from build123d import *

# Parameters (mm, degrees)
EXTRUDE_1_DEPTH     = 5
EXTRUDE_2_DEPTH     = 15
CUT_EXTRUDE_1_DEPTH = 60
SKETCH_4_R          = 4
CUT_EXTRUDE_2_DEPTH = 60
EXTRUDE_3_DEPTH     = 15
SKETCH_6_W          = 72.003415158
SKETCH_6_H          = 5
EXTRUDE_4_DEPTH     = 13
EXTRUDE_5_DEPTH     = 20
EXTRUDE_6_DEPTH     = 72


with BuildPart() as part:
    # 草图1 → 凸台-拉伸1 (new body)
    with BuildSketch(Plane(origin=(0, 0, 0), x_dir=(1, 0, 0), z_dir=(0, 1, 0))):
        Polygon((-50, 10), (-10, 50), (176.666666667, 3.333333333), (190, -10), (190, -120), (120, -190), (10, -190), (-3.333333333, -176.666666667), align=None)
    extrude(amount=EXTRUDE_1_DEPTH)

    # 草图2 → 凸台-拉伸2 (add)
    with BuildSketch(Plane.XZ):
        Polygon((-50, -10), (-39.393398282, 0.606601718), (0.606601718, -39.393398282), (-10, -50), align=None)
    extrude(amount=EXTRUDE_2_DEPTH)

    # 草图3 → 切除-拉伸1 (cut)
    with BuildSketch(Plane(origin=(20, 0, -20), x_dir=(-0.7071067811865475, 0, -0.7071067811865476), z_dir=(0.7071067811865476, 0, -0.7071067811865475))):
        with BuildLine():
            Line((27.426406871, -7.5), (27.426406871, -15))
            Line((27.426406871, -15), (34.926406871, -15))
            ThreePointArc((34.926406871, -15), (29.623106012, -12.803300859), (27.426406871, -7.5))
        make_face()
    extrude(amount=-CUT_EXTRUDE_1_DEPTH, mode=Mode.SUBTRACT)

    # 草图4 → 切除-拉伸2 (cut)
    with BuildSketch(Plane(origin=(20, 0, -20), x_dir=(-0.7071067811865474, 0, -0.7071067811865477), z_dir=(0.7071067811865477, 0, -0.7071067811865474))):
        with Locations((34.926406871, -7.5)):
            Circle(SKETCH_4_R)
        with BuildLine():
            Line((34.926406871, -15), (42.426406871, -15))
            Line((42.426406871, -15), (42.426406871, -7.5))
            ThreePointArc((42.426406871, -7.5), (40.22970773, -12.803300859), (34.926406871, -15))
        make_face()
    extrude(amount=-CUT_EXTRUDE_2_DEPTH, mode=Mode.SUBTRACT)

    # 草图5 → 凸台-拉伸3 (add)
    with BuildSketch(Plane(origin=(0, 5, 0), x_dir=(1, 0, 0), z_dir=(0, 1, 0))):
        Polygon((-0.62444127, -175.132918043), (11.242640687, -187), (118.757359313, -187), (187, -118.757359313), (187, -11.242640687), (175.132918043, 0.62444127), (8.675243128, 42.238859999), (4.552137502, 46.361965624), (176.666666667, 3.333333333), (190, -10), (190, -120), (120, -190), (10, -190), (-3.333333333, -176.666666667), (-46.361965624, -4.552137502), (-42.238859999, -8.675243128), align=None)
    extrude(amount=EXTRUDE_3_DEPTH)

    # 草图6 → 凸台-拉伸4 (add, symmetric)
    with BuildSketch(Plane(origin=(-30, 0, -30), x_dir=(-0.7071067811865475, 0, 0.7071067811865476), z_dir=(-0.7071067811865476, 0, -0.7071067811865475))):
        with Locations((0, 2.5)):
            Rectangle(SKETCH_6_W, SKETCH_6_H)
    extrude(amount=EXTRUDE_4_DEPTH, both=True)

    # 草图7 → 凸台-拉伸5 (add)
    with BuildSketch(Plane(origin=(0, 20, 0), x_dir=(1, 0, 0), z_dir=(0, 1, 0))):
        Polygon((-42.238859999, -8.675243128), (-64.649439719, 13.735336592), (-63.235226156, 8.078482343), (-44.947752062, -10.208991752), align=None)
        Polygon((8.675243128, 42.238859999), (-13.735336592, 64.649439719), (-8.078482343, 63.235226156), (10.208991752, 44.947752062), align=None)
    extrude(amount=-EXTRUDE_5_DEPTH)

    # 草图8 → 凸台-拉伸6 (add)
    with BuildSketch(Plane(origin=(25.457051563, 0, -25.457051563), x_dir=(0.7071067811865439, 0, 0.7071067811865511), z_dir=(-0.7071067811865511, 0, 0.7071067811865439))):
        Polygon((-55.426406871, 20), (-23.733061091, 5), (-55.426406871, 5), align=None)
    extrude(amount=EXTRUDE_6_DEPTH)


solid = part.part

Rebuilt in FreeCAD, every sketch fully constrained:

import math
import FreeCAD as App
import Part
import Sketcher

V = App.Vector
Q = App.Units.Quantity

doc = App.newDocument("Part")
body = doc.addObject("PartDesign::Body", "Body")

# Sketch on XZ plane
sketch1 = body.newObject("Sketcher::SketchObject", "Sketch")
sketch1.AttachmentSupport = (doc.getObject("XZ_Plane"), [""])
sketch1.MapMode = "FlatFace"
sketch1.addGeometry([
    Part.LineSegment(V(-10, -50, 0), V(-50, -10, 0)),  # 0
    Part.LineSegment(V(-50, -10, 0), V(-3, 177, 0)),  # 1
    Part.LineSegment(V(-3, 177, 0), V(10, 190, 0)),  # 2
    Part.LineSegment(V(10, 190, 0), V(120, 190, 0)),  # 3
    Part.LineSegment(V(120, 190, 0), V(190, 120, 0)),  # 4
    Part.LineSegment(V(190, 120, 0), V(190, 10, 0)),  # 5
    Part.LineSegment(V(190, 10, 0), V(177, -3, 0)),  # 6
    Part.LineSegment(V(177, -3, 0), V(-10, -50, 0)),  # 7
], False)
sketch1.addConstraint([
    Sketcher.Constraint("Coincident", 0, 2, 1, 1),
    Sketcher.Constraint("Coincident", 1, 2, 2, 1),
    Sketcher.Constraint("Coincident", 2, 2, 3, 1),
    Sketcher.Constraint("Coincident", 3, 2, 4, 1),
    Sketcher.Constraint("Coincident", 4, 2, 5, 1),
    Sketcher.Constraint("Coincident", 5, 2, 6, 1),
    Sketcher.Constraint("Coincident", 6, 2, 7, 1),
    Sketcher.Constraint("Coincident", 7, 2, 0, 1),
    Sketcher.Constraint("Horizontal", 3),
    Sketcher.Constraint("Vertical", 5),
    Sketcher.Constraint("Perpendicular", 0, 2),
    Sketcher.Constraint("Perpendicular", 2, 4),
    Sketcher.Constraint("Perpendicular", 4, 6),
    Sketcher.Constraint("Equal", 3, 5),
    Sketcher.Constraint("Equal", 2, 6),
    Sketcher.Constraint("Equal", 1, 7),
    Sketcher.Constraint("DistanceX", 3, 1, 3, 2, 110.0),
    Sketcher.Constraint("Angle", 0, Q("135 deg")),
    Sketcher.Constraint("DistanceX", 0, 2, -1, 1, 50.0),
    Sketcher.Constraint("DistanceY", 0, 2, -1, 1, 10.0),
    Sketcher.Constraint("DistanceX", -1, 1, 2, 2, 10.0),
    Sketcher.Constraint("DistanceY", -1, 1, 2, 2, 190.0),
    Sketcher.Constraint("DistanceX", -1, 1, 4, 2, 190.0),
    Sketcher.Constraint("Distance", 2, 18.856181),
])
pad1 = body.newObject("PartDesign::Pad", "Pad")
pad1.Profile = sketch1
pad1.Length = 5
pad1.Reversed = True

# Sketch on XZ plane
sketch2 = body.newObject("Sketcher::SketchObject", "Sketch001")
sketch2.AttachmentSupport = (doc.getObject("XZ_Plane"), [""])
sketch2.MapMode = "FlatFace"
sketch2.addGeometry([
    Part.LineSegment(V(-39, 1, 0), V(-50, -10, 0)),
    Part.LineSegment(V(-50, -10, 0), V(-10, -50, 0)),
    Part.LineSegment(V(-10, -50, 0), V(1, -39, 0)),
    Part.LineSegment(V(1, -39, 0), V(-39, 1, 0)),
], False)
sketch2.addConstraint([
    Sketcher.Constraint("Coincident", 0, 2, 1, 1),
    Sketcher.Constraint("Coincident", 1, 2, 2, 1),
    Sketcher.Constraint("Coincident", 2, 2, 3, 1),
    Sketcher.Constraint("Coincident", 3, 2, 0, 1),
    Sketcher.Constraint("Perpendicular", 0, 1),
    Sketcher.Constraint("Perpendicular", 1, 2),
    Sketcher.Constraint("Perpendicular", 2, 3),
    Sketcher.Constraint("Angle", 0, Q("-135 deg")),
    Sketcher.Constraint("Distance", 0, 15.0),
    Sketcher.Constraint("DistanceX", 0, 2, -1, 1, 50.0),
    Sketcher.Constraint("DistanceY", 0, 2, -1, 1, 10.0),
    Sketcher.Constraint("DistanceX", 1, 2, -1, 1, 10.0),
])
pad2 = body.newObject("PartDesign::Pad", "Pad001")
pad2.Profile = sketch2
pad2.Length = 15

# Sketch on an angled plane
sketch3 = body.newObject("Sketcher::SketchObject", "Sketch002")
sketch3.Placement = App.Placement(V(20, 0, -20), App.Rotation(V(-0.707106781, 0, -0.707106781), V(0, 0.999999999, 0), V(0.707106781, 0, -0.707106781), "ZXY"))
sketch3.addGeometry([
    Part.LineSegment(V(27, -7, 0), V(27, -15, 0)),
    Part.LineSegment(V(27, -15, 0), V(35, -15, 0)),
    Part.ArcOfCircle(Part.Circle(V(35, -7, 0), V(0, 0, 1), 8), math.radians(180), math.radians(270)),
], False)
sketch3.addConstraint([
    Sketcher.Constraint("Coincident", 0, 2, 1, 1),
    Sketcher.Constraint("Tangent", 1, 2, 2, 2),
    Sketcher.Constraint("Tangent", 2, 1, 0, 1),
    Sketcher.Constraint("Vertical", 0),
    Sketcher.Constraint("Horizontal", 1),
    Sketcher.Constraint("Radius", 2, 7.5),
    Sketcher.Constraint("DistanceY", 0, 2, -1, 1, 15.0),
    Sketcher.Constraint("DistanceX", -1, 1, 2, 3, 34.926407),
])
pocket1 = body.newObject("PartDesign::Pocket", "Pocket")
pocket1.Profile = sketch3
pocket1.Length = 60

# Sketch on an angled plane
sketch4 = body.newObject("Sketcher::SketchObject", "Sketch003")
sketch4.Placement = App.Placement(V(20, 0, -20), App.Rotation(V(-0.707106781, 0, -0.707106781), V(0, 0.999999999, 0), V(0.707106781, 0, -0.707106781), "ZXY"))
sketch4.addGeometry([
    Part.Circle(V(34.9, -7.5, 0), V(0, 0, 1), 4),
    Part.LineSegment(V(34.9, -15, 0), V(42.4, -15, 0)),
    Part.LineSegment(V(42.4, -15, 0), V(42.4, -7.5, 0)),
    Part.ArcOfCircle(Part.Circle(V(34.9, -7.5, 0), V(0, 0, 1), 7.5), math.radians(-90), math.radians(0)),
], False)
sketch4.addConstraint([
    Sketcher.Constraint("Coincident", 1, 2, 2, 1),
    Sketcher.Constraint("Tangent", 2, 2, 3, 2),
    Sketcher.Constraint("Tangent", 3, 1, 1, 1),
    Sketcher.Constraint("Horizontal", 1),
    Sketcher.Constraint("Vertical", 2),
    Sketcher.Constraint("Coincident", 3, 3, 0, 3),
    Sketcher.Constraint("Diameter", 0, 8.0),
    Sketcher.Constraint("Radius", 3, 7.5),
    Sketcher.Constraint("DistanceY", 1, 2, -1, 1, 15.0),
    Sketcher.Constraint("DistanceX", -1, 1, 0, 3, 34.926407),
])
pocket2 = body.newObject("PartDesign::Pocket", "Pocket001")
pocket2.Profile = sketch4
pocket2.Length = 60

# Sketch on XZ plane
sketch5 = body.newObject("Sketcher::SketchObject", "Sketch004")
sketch5.AttachmentSupport = (doc.getObject("XZ_Plane"), [""])
sketch5.MapMode = "FlatFace"
sketch5.AttachmentOffset = App.Placement(V(0, 0, -5), App.Rotation())
sketch5.addGeometry([
    Part.LineSegment(V(11.242641, 187, 0), V(-0.624441, 175.132918, 0)),  # 0
    Part.LineSegment(V(-0.624441, 175.132918, 0), V(-42.23886, 8.675243, 0)),  # 1
    Part.LineSegment(V(-42.23886, 8.675243, 0), V(-46.361966, 4.552138, 0)),  # 2
    Part.LineSegment(V(-46.361966, 4.552138, 0), V(-3.333333, 176.666667, 0)),  # 3
    Part.LineSegment(V(-3.333333, 176.666667, 0), V(10, 190, 0)),  # 4
    Part.LineSegment(V(10, 190, 0), V(120, 190, 0)),  # 5
    Part.LineSegment(V(120, 190, 0), V(190, 120, 0)),  # 6
    Part.LineSegment(V(190, 120, 0), V(190, 10, 0)),  # 7
    Part.LineSegment(V(190, 10, 0), V(176.666667, -3.333333, 0)),  # 8
    Part.LineSegment(V(176.666667, -3.333333, 0), V(4.552138, -46.361966, 0)),  # 9
    Part.LineSegment(V(4.552138, -46.361966, 0), V(8.675243, -42.23886, 0)),  # 10
    Part.LineSegment(V(8.675243, -42.23886, 0), V(175.132918, -0.624441, 0)),  # 11
    Part.LineSegment(V(175.132918, -0.624441, 0), V(187, 11.242641, 0)),  # 12
    Part.LineSegment(V(187, 11.242641, 0), V(187, 118.757359, 0)),  # 13
    Part.LineSegment(V(187, 118.757359, 0), V(118.757359, 187, 0)),  # 14
    Part.LineSegment(V(118.757359, 187, 0), V(11.242641, 187, 0)),  # 15
], False)
sketch5.addConstraint([
    Sketcher.Constraint("Coincident", 0, 2, 1, 1),
    Sketcher.Constraint("Coincident", 1, 2, 2, 1),
    Sketcher.Constraint("Coincident", 2, 2, 3, 1),
    Sketcher.Constraint("Coincident", 3, 2, 4, 1),
    Sketcher.Constraint("Coincident", 4, 2, 5, 1),
    Sketcher.Constraint("Coincident", 5, 2, 6, 1),
    Sketcher.Constraint("Coincident", 6, 2, 7, 1),
    Sketcher.Constraint("Coincident", 7, 2, 8, 1),
    Sketcher.Constraint("Coincident", 8, 2, 9, 1),
    Sketcher.Constraint("Coincident", 9, 2, 10, 1),
    Sketcher.Constraint("Coincident", 10, 2, 11, 1),
    Sketcher.Constraint("Coincident", 11, 2, 12, 1),
    Sketcher.Constraint("Coincident", 12, 2, 13, 1),
    Sketcher.Constraint("Coincident", 13, 2, 14, 1),
    Sketcher.Constraint("Coincident", 14, 2, 15, 1),
    Sketcher.Constraint("Coincident", 15, 2, 0, 1),
    Sketcher.Constraint("Horizontal", 5),
    Sketcher.Constraint("Vertical", 7),
    Sketcher.Constraint("Vertical", 13),
    Sketcher.Constraint("Horizontal", 15),
    Sketcher.Constraint("DistanceX", 5, 1, 5, 2, 110.0),
    Sketcher.Constraint("DistanceY", 7, 2, 7, 1, 110.0),
    Sketcher.Constraint("DistanceX", -1, 1, 4, 2, 10.0),
    Sketcher.Constraint("DistanceY", -1, 1, 4, 2, 190.0),
    Sketcher.Constraint("DistanceX", -1, 1, 6, 2, 190.0),
    Sketcher.Constraint("DistanceY", -1, 1, 6, 2, 120.0),
    Sketcher.Constraint("DistanceX", -1, 1, 12, 2, 187.0),
    Sketcher.Constraint("DistanceY", -1, 1, 14, 2, 187.0),
    Sketcher.Constraint("DistanceX", 15, 2, 15, 1, 107.514719),
    Sketcher.Constraint("DistanceY", 13, 1, 13, 2, 107.514719),
    Sketcher.Constraint("DistanceY", 10, 2, 12, 2, 53.481501),
    Sketcher.Constraint("DistanceY", 11, 2, 13, 2, 119.381801),
    Sketcher.Constraint("DistanceX", 0, 2, 14, 2, 119.381801),
    Sketcher.Constraint("Distance", 0, 16.782588),
    Sketcher.Constraint("Distance", 2, 5.830952),
    Sketcher.Constraint("Distance", 4, 18.856181),
    Sketcher.Constraint("Distance", 8, 18.856181),
    Sketcher.Constraint("Distance", 10, 5.830952),
    Sketcher.Constraint("Distance", 12, 16.782588),
    Sketcher.Constraint("DistanceX", 0, 2, -1, 1, 0.624441),
    Sketcher.Constraint("DistanceX", 1, 2, -1, 1, 42.23886),
    Sketcher.Constraint("DistanceY", 10, 2, -1, 1, 42.23886),
    Sketcher.Constraint("DistanceY", 2, 2, 0, 2, 170.580781),
    Sketcher.Constraint("DistanceY", 0, 2, 3, 2, 1.533749),
    Sketcher.Constraint("DistanceY", 8, 2, 2, 2, 7.885471),
    Sketcher.Constraint("DistanceY", 9, 2, 1, 2, 55.037209),
    Sketcher.Constraint("DistanceX", 9, 2, 8, 2, 172.114529),
    Sketcher.Constraint("Distance", 1, 171.580644),
])
pad3 = body.newObject("PartDesign::Pad", "Pad002")
pad3.Profile = sketch5
pad3.Length = 15
pad3.Reversed = True

# Sketch on an angled plane
sketch6 = body.newObject("Sketcher::SketchObject", "Sketch005")
sketch6.Placement = App.Placement(V(-30, 0, -30), App.Rotation(V(-0.707106781, 0, 0.707106781), V(0, 0.999999999, 0), V(-0.707106781, 0, -0.707106781), "ZXY"))
sketch6.addGeometry([
    Part.LineSegment(V(-36, 5, 0), V(-36, 0, 0)),
    Part.LineSegment(V(-36, 0, 0), V(36, 0, 0)),
    Part.LineSegment(V(36, 0, 0), V(36, 5, 0)),
    Part.LineSegment(V(36, 5, 0), V(-36, 5, 0)),
], False)
sketch6.addConstraint([
    Sketcher.Constraint("Coincident", 0, 2, 1, 1),
    Sketcher.Constraint("Coincident", 1, 2, 2, 1),
    Sketcher.Constraint("Coincident", 2, 2, 3, 1),
    Sketcher.Constraint("Coincident", 3, 2, 0, 1),
    Sketcher.Constraint("Vertical", 0),
    Sketcher.Constraint("Horizontal", 1),
    Sketcher.Constraint("Vertical", 2),
    Sketcher.Constraint("Horizontal", 3),
    Sketcher.Constraint("Symmetric", 0, 2, 1, 2, -1, 1),
    Sketcher.Constraint("DistanceY", 0, 2, 0, 1, 5.0),
    Sketcher.Constraint("DistanceX", 1, 1, 1, 2, 72.003415),
])
pad4 = body.newObject("PartDesign::Pad", "Pad003")
pad4.Profile = sketch6
pad4.Length = 26
pad4.Midplane = True

# Sketch on XZ plane
sketch7 = body.newObject("Sketcher::SketchObject", "Sketch006")
sketch7.AttachmentSupport = (doc.getObject("XZ_Plane"), [""])
sketch7.MapMode = "FlatFace"
sketch7.AttachmentOffset = App.Placement(V(0, 0, -20), App.Rotation())
sketch7.addGeometry([
    Part.LineSegment(V(-42.2, 8.7, 0), V(-64.6, -13.7, 0)),  # 0
    Part.LineSegment(V(-64.6, -13.7, 0), V(-63.2, -8.1, 0)),  # 1
    Part.LineSegment(V(-63.2, -8.1, 0), V(-44.9, 10.2, 0)),  # 2
    Part.LineSegment(V(-44.9, 10.2, 0), V(-42.2, 8.7, 0)),  # 3
    Part.LineSegment(V(-13.7, -64.6, 0), V(8.7, -42.2, 0)),  # 4
    Part.LineSegment(V(8.7, -42.2, 0), V(10.2, -44.9, 0)),  # 5
    Part.LineSegment(V(10.2, -44.9, 0), V(-8.1, -63.2, 0)),  # 6
    Part.LineSegment(V(-8.1, -63.2, 0), V(-13.7, -64.6, 0)),  # 7
], False)
sketch7.addConstraint([
    Sketcher.Constraint("Coincident", 0, 2, 1, 1),
    Sketcher.Constraint("Coincident", 1, 2, 2, 1),
    Sketcher.Constraint("Coincident", 2, 2, 3, 1),
    Sketcher.Constraint("Coincident", 3, 2, 0, 1),
    Sketcher.Constraint("Coincident", 4, 2, 5, 1),
    Sketcher.Constraint("Coincident", 5, 2, 6, 1),
    Sketcher.Constraint("Coincident", 6, 2, 7, 1),
    Sketcher.Constraint("Coincident", 7, 2, 4, 1),
    Sketcher.Constraint("Parallel", 0, 2),
    Sketcher.Constraint("Parallel", 2, 4),
    Sketcher.Constraint("Parallel", 4, 6),
    Sketcher.Constraint("Equal", 0, 4),
    Sketcher.Constraint("Equal", 3, 5),
    Sketcher.Constraint("Equal", 2, 6),
    Sketcher.Constraint("Equal", 1, 7),
    Sketcher.Constraint("Angle", 0, Q("-135 deg")),
    Sketcher.Constraint("Distance", 1, 5.830952),
    Sketcher.Constraint("DistanceX", 0, 2, -1, 1, 64.64944),
    Sketcher.Constraint("DistanceY", -1, 1, 2, 2, 10.208992),
    Sketcher.Constraint("DistanceX", 3, 2, -1, 1, 42.23886),
    Sketcher.Constraint("DistanceY", 4, 2, -1, 1, 42.23886),
    Sketcher.Constraint("DistanceX", -1, 1, 5, 2, 10.208992),
    Sketcher.Constraint("DistanceY", 0, 2, 2, 2, 23.944328),
    Sketcher.Constraint("DistanceX", 1, 2, 4, 2, 71.910469),
])
pad5 = body.newObject("PartDesign::Pad", "Pad004")
pad5.Profile = sketch7
pad5.Length = 20

# Sketch on an angled plane
sketch8 = body.newObject("Sketcher::SketchObject", "Sketch007")
sketch8.Placement = App.Placement(V(25.457052, 0, -25.457052), App.Rotation(V(0.707106781, 0, 0.707106781), V(0, 0.999999999, 0), V(-0.707106781, 0, 0.707106781), "ZXY"))
sketch8.addGeometry([
    Part.LineSegment(V(-24, 5, 0), V(-55, 20, 0)),
    Part.LineSegment(V(-55, 20, 0), V(-55, 5, 0)),
    Part.LineSegment(V(-55, 5, 0), V(-24, 5, 0)),
], False)
sketch8.addConstraint([
    Sketcher.Constraint("Coincident", 0, 2, 1, 1),
    Sketcher.Constraint("Coincident", 1, 2, 2, 1),
    Sketcher.Constraint("Coincident", 2, 2, 0, 1),
    Sketcher.Constraint("Vertical", 1),
    Sketcher.Constraint("Horizontal", 2),
    Sketcher.Constraint("DistanceY", 1, 2, 1, 1, 15.0),
    Sketcher.Constraint("DistanceY", -1, 1, 0, 2, 20.0),
    Sketcher.Constraint("DistanceX", 2, 1, 2, 2, 31.693346),
    Sketcher.Constraint("DistanceX", 2, 2, -1, 1, 23.733061),
])
pad6 = body.newObject("PartDesign::Pad", "Pad005")
pad6.Profile = sketch8
pad6.Length = 72

doc.recompute()
